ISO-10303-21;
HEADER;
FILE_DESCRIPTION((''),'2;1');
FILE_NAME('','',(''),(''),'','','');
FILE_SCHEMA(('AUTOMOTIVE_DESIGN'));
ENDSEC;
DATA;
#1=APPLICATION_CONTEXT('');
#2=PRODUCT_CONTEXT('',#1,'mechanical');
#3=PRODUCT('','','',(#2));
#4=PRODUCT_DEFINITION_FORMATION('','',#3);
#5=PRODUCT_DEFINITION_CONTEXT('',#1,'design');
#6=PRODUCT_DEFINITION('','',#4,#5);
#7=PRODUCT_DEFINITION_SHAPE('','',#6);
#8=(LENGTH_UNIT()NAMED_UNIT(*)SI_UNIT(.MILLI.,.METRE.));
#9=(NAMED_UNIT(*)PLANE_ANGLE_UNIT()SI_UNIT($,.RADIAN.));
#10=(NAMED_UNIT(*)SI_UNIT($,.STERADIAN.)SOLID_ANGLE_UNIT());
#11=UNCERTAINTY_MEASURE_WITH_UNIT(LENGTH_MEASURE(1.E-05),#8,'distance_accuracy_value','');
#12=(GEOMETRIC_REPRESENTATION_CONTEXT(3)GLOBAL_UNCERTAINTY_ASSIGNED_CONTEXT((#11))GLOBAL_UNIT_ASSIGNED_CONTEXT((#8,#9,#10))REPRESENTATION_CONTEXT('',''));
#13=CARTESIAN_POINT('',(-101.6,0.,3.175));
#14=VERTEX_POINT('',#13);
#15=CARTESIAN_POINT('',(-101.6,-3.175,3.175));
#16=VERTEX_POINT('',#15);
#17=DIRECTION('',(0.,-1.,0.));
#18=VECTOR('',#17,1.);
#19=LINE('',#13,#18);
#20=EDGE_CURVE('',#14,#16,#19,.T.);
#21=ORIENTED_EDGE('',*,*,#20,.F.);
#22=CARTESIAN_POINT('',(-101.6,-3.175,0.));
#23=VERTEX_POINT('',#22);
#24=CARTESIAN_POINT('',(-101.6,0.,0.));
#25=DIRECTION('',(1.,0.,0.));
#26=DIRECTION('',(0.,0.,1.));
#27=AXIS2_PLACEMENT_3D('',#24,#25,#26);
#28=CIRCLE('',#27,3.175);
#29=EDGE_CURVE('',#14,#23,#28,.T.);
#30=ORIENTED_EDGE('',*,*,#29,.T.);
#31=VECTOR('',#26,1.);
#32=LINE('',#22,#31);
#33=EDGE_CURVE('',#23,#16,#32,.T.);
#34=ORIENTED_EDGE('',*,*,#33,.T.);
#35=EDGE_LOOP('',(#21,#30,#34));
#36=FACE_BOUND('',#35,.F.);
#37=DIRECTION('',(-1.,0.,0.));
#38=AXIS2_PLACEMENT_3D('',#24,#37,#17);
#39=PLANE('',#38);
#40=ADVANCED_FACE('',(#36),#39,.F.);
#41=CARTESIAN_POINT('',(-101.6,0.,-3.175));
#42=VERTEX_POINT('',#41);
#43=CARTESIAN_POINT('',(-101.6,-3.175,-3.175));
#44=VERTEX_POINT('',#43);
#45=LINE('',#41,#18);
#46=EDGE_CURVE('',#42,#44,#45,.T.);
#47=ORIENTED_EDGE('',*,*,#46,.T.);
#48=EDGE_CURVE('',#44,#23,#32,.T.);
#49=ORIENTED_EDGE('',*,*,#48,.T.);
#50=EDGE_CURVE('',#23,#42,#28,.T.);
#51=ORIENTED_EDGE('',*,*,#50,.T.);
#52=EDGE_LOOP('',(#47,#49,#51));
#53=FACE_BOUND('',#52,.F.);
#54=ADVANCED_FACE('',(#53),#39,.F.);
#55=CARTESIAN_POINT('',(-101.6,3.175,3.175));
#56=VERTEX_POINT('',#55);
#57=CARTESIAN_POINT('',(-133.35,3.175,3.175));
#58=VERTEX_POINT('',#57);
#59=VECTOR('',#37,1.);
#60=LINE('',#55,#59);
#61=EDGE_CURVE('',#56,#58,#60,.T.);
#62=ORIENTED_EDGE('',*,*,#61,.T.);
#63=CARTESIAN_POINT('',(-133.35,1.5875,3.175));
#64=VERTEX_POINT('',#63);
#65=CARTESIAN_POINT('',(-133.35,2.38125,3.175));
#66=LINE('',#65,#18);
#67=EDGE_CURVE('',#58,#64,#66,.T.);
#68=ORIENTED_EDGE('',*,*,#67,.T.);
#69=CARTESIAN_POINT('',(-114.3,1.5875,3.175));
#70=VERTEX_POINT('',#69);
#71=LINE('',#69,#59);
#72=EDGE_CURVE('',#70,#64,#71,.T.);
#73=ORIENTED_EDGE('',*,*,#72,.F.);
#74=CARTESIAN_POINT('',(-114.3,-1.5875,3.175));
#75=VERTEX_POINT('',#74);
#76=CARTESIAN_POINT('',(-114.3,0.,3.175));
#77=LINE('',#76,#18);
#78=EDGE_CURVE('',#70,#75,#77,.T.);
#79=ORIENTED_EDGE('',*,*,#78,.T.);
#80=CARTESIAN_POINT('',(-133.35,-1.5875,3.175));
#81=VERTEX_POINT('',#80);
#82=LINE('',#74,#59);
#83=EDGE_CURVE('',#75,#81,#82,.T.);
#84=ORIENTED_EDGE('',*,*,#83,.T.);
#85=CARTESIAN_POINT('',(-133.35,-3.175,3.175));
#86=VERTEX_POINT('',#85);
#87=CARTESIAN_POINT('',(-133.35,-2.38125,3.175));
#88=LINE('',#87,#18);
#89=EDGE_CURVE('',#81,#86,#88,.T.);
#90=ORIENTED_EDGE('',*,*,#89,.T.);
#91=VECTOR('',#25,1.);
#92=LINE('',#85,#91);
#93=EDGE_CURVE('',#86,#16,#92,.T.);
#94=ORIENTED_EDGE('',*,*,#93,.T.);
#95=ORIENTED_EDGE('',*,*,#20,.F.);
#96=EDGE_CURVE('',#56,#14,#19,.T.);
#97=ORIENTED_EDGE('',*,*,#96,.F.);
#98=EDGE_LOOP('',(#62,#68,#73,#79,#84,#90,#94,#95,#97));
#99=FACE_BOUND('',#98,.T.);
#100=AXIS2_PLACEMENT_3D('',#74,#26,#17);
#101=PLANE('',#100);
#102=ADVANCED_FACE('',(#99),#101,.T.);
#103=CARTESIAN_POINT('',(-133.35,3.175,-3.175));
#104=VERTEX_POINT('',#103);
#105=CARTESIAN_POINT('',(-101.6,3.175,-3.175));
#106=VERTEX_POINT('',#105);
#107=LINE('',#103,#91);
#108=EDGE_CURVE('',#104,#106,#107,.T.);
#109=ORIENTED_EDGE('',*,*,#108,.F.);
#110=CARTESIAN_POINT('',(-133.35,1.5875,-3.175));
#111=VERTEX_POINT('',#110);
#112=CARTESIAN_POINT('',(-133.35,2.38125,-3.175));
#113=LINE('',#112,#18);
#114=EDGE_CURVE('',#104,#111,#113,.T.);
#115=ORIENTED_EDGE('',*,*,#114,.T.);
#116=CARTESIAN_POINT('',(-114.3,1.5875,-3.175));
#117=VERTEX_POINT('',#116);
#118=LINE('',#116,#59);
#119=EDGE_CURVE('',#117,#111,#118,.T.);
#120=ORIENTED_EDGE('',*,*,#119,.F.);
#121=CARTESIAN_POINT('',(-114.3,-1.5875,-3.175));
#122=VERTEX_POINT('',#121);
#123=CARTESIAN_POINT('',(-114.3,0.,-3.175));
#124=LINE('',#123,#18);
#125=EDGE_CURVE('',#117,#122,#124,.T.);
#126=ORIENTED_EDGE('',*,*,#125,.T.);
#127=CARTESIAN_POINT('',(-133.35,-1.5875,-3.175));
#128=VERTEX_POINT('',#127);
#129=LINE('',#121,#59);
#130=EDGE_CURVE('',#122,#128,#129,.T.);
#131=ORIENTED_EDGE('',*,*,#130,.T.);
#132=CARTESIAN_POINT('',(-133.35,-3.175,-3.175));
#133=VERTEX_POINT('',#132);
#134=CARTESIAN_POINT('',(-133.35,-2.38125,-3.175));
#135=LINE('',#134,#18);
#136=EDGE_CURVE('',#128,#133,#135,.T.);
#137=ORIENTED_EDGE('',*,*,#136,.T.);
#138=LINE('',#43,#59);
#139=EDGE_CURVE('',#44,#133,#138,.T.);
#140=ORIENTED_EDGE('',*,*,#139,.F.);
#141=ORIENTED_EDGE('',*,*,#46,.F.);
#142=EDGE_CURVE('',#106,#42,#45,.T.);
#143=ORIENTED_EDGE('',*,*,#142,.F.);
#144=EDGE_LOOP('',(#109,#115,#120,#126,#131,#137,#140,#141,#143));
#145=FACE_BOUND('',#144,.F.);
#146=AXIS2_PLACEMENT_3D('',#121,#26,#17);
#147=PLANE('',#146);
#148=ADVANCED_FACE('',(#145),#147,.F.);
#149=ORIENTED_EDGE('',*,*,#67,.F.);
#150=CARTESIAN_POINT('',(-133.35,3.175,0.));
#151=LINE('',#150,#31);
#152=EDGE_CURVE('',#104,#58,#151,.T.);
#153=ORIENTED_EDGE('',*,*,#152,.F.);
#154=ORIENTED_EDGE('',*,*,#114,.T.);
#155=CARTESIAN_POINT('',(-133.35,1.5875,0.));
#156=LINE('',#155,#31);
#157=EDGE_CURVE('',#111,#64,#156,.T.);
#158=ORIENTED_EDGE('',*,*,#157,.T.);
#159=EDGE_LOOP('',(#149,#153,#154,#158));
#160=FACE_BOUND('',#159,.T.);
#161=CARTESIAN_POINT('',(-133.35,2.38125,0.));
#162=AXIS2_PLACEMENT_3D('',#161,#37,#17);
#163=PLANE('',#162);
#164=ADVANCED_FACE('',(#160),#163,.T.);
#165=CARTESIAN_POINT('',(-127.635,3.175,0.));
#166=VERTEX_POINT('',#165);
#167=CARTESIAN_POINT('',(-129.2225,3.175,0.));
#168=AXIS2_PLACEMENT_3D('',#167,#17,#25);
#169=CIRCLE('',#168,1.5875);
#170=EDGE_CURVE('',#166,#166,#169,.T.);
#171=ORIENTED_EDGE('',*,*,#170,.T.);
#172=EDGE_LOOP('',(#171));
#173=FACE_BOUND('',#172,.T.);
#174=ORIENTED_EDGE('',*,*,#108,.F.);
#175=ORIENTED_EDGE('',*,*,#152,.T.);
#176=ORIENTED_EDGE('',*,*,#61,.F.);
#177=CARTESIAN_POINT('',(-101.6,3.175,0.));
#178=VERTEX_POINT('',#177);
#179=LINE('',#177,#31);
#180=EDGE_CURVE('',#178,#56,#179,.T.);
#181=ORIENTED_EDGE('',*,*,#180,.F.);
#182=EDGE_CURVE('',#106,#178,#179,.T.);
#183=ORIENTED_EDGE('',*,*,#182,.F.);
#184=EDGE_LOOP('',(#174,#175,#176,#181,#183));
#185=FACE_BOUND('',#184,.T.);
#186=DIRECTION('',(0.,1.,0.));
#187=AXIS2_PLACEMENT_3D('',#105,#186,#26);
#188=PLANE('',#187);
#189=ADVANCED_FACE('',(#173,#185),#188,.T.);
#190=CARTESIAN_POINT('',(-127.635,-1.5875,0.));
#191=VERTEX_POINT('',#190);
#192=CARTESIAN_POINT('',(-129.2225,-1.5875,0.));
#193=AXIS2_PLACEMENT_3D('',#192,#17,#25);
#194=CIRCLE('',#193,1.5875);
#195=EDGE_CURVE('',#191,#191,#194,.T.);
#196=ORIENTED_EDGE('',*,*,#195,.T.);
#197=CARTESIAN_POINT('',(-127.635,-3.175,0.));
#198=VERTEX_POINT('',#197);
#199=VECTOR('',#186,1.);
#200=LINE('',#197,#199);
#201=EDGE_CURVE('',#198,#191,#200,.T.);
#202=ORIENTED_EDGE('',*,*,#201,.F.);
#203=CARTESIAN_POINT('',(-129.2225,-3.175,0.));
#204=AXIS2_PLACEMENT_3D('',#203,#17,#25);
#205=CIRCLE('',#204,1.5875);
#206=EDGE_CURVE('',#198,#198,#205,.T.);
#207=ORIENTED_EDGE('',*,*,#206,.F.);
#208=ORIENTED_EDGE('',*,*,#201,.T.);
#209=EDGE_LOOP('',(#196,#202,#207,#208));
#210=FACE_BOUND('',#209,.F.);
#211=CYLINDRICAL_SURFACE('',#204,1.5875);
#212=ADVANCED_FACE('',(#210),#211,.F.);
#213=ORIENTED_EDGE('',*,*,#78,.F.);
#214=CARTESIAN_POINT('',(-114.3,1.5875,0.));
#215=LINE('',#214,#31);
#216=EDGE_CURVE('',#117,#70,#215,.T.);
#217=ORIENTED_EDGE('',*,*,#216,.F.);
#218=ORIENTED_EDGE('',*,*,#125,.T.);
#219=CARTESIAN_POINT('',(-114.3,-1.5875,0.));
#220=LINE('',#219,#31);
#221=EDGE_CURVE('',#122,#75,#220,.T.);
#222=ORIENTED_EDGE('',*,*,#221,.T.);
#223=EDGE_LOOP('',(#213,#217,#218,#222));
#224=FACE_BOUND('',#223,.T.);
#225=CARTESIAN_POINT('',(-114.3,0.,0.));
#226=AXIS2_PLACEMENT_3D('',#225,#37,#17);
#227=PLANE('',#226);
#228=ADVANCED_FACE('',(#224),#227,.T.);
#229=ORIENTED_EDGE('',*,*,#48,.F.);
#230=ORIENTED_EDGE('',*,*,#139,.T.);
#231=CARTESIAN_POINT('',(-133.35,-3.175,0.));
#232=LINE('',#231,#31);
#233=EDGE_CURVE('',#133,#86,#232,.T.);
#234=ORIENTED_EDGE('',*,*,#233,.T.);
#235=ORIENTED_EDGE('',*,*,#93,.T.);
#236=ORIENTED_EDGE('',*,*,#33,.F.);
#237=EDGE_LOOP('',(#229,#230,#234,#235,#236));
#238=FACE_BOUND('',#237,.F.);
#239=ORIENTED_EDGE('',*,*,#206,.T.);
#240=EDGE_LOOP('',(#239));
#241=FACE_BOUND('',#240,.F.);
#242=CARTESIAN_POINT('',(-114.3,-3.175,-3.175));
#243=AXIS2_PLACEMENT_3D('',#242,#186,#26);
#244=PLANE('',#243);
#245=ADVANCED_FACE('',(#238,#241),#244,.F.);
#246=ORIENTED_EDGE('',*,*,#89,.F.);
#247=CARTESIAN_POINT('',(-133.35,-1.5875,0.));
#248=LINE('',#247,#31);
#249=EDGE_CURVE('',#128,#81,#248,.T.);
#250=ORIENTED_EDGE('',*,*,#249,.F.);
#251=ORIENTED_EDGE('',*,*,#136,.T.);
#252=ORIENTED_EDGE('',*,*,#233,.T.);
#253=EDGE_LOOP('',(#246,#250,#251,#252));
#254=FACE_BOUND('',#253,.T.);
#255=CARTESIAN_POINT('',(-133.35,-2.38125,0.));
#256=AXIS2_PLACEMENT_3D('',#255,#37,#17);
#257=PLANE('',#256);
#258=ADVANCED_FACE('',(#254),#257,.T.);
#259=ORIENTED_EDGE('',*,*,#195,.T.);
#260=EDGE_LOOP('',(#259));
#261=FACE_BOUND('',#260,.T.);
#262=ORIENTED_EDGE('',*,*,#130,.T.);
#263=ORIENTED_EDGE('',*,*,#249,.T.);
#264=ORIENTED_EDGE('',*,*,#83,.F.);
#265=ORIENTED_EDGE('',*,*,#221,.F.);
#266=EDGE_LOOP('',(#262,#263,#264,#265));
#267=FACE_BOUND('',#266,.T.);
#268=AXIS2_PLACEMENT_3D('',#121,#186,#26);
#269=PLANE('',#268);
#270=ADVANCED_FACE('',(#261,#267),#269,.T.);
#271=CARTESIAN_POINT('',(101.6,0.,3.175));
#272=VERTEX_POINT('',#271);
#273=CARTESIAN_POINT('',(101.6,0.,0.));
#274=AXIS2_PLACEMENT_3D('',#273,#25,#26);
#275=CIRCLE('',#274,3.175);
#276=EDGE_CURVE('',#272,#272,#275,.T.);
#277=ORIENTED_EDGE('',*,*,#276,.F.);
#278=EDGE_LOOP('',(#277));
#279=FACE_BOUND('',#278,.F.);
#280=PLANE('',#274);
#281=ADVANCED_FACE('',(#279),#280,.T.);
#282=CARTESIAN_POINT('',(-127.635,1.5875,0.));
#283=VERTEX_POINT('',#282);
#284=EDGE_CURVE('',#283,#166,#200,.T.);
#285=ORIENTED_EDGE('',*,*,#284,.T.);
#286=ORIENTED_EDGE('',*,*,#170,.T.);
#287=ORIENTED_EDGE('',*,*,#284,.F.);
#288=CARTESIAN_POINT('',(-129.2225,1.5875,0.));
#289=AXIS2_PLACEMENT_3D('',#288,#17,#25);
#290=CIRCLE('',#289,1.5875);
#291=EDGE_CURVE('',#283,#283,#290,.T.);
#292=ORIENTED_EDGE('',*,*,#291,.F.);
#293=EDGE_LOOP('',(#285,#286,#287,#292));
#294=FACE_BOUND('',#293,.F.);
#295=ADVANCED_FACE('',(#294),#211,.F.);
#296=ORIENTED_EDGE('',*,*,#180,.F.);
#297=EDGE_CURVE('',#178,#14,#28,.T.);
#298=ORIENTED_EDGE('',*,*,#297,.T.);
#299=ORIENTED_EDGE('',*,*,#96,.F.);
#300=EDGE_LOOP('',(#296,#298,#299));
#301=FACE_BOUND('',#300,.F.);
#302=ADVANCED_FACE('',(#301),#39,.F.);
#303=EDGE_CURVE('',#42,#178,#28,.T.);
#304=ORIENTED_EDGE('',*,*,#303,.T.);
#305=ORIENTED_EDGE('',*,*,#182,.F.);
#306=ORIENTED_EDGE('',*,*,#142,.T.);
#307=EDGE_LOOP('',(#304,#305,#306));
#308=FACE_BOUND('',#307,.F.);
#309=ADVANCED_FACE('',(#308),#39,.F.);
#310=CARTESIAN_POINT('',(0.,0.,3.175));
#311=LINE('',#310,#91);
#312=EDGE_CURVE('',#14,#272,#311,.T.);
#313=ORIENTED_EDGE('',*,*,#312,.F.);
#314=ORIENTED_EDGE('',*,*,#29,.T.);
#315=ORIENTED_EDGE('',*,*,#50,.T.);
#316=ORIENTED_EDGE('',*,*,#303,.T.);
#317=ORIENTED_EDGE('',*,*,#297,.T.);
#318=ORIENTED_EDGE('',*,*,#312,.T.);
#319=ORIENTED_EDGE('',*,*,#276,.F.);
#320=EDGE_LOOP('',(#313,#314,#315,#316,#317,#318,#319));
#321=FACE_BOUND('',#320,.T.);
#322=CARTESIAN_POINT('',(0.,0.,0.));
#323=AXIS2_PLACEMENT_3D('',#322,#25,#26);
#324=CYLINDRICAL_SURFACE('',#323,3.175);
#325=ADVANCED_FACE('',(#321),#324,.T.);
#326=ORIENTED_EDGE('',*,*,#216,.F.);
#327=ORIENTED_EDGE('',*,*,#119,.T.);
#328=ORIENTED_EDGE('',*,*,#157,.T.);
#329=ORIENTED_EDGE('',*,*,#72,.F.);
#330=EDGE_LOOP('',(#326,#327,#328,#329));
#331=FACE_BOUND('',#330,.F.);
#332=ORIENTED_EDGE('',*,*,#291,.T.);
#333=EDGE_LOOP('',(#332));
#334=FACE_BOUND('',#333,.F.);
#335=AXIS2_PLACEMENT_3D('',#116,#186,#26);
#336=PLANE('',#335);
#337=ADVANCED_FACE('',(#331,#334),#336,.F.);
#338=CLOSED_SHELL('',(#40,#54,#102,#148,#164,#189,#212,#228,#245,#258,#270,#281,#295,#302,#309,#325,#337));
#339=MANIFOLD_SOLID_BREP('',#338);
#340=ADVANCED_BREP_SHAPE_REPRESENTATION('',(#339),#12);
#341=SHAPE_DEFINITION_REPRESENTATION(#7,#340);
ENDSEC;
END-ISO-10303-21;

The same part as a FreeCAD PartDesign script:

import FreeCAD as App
import Part
import Sketcher
Q = App.Units.Quantity

doc = App.newDocument("Part")
body = doc.addObject("PartDesign::Body", "Body")

# Sketch on XZ plane
sketch1 = body.newObject("Sketcher::SketchObject", "Sketch")
sketch1.AttachmentSupport = (doc.getObject("XZ_Plane"), [""])
sketch1.MapMode = "FlatFace"
sketch1.addGeometry([
    Part.LineSegment(App.Vector(-101.6, 3.2, 0), App.Vector(-101.6, 0, 0)),
    Part.LineSegment(App.Vector(-101.6, 0, 0), App.Vector(101.6, 0, 0)),
    Part.LineSegment(App.Vector(101.6, 0, 0), App.Vector(101.6, 3.2, 0)),
    Part.LineSegment(App.Vector(101.6, 3.2, 0), App.Vector(-101.6, 3.2, 0)),
], False)
sketch1.addConstraint([
    Sketcher.Constraint("Coincident", 0, 2, 1, 1),
    Sketcher.Constraint("Coincident", 1, 2, 2, 1),
    Sketcher.Constraint("Coincident", 2, 2, 3, 1),
    Sketcher.Constraint("Coincident", 3, 2, 0, 1),
    Sketcher.Constraint("Vertical", 0),
    Sketcher.Constraint("Horizontal", 1),
    Sketcher.Constraint("Vertical", 2),
    Sketcher.Constraint("Horizontal", 3),
    Sketcher.Constraint("Symmetric", 0, 2, 1, 2, -1, 1),
    Sketcher.Constraint("DistanceX", 1, 1, 1, 2, Q("8 in")),
    Sketcher.Constraint("DistanceY", 0, 2, 0, 1, Q("0.125 in")),
])
revolution = body.newObject("PartDesign::Revolution", "Revolution")
revolution.Profile = sketch1
revolution.ReferenceAxis = (sketch1, ["H_Axis"])
revolution.Angle = 360

# Sketch on YZ plane
sketch2 = body.newObject("Sketcher::SketchObject", "Sketch001")
sketch2.AttachmentSupport = (doc.getObject("YZ_Plane"), [""])
sketch2.MapMode = "FlatFace"
sketch2.AttachmentOffset = App.Placement(App.Vector(0, 0, -4 * 25.4), App.Rotation())
sketch2.addGeometry([
    Part.LineSegment(App.Vector(3, 3, 0), App.Vector(3, -3, 0)),
    Part.LineSegment(App.Vector(3, -3, 0), App.Vector(-3, -3, 0)),
    Part.LineSegment(App.Vector(-3, -3, 0), App.Vector(-3, 3, 0)),
    Part.LineSegment(App.Vector(-3, 3, 0), App.Vector(3, 3, 0)),
], False)
sketch2.addConstraint([
    Sketcher.Constraint("Coincident", 0, 2, 1, 1),
    Sketcher.Constraint("Coincident", 1, 2, 2, 1),
    Sketcher.Constraint("Coincident", 2, 2, 3, 1),
    Sketcher.Constraint("Coincident", 3, 2, 0, 1),
    Sketcher.Constraint("Vertical", 0),
    Sketcher.Constraint("Horizontal", 1),
    Sketcher.Constraint("Vertical", 2),
    Sketcher.Constraint("Horizontal", 3),
    Sketcher.Constraint("Symmetric", 0, 2, 2, 2, -1, 1),
    Sketcher.Constraint("Equal", 3, 0),
    Sketcher.Constraint("DistanceX", 1, 2, 1, 1, Q("0.25 in")),
])
pad1 = body.newObject("PartDesign::Pad", "Pad")
pad1.Profile = sketch2
pad1.Length = Q("0.5 in")
pad1.Reversed = True

# Sketch on YZ plane
sketch3 = body.newObject("Sketcher::SketchObject", "Sketch002")
sketch3.AttachmentSupport = (doc.getObject("YZ_Plane"), [""])
sketch3.MapMode = "FlatFace"
sketch3.AttachmentOffset = App.Placement(App.Vector(0, 0, -4.5 * 25.4), App.Rotation())
sketch3.addGeometry([
    Part.LineSegment(App.Vector(-1.6, 3.2, 0), App.Vector(-1.6, -3.2, 0)),  # 0
    Part.LineSegment(App.Vector(-1.6, -3.2, 0), App.Vector(-3.2, -3.2, 0)),  # 1
    Part.LineSegment(App.Vector(-3.2, -3.2, 0), App.Vector(-3.2, 3.2, 0)),  # 2
    Part.LineSegment(App.Vector(-3.2, 3.2, 0), App.Vector(-1.6, 3.2, 0)),  # 3
    Part.LineSegment(App.Vector(3.2, 3.2, 0), App.Vector(3.2, -3.2, 0)),  # 4
    Part.LineSegment(App.Vector(3.2, -3.2, 0), App.Vector(1.6, -3.2, 0)),  # 5
    Part.LineSegment(App.Vector(1.6, -3.2, 0), App.Vector(1.6, 3.2, 0)),  # 6
    Part.LineSegment(App.Vector(1.6, 3.2, 0), App.Vector(3.2, 3.2, 0)),  # 7
], False)
sketch3.addConstraint([
    Sketcher.Constraint("Coincident", 0, 2, 1, 1),
    Sketcher.Constraint("Coincident", 1, 2, 2, 1),
    Sketcher.Constraint("Coincident", 2, 2, 3, 1),
    Sketcher.Constraint("Coincident", 3, 2, 0, 1),
    Sketcher.Constraint("Coincident", 4, 2, 5, 1),
    Sketcher.Constraint("Coincident", 5, 2, 6, 1),
    Sketcher.Constraint("Coincident", 6, 2, 7, 1),
    Sketcher.Constraint("Coincident", 7, 2, 4, 1),
    Sketcher.Constraint("Vertical", 0),
    Sketcher.Constraint("Horizontal", 1),
    Sketcher.Constraint("Vertical", 2),
    Sketcher.Constraint("Horizontal", 3),
    Sketcher.Constraint("Vertical", 4),
    Sketcher.Constraint("Horizontal", 5),
    Sketcher.Constraint("Vertical", 6),
    Sketcher.Constraint("Horizontal", 7),
    Sketcher.Constraint("Symmetric", 2, 2, 4, 2, -1, 1),
    Sketcher.Constraint("Symmetric", 0, 2, 6, 2, -1, 1),
    Sketcher.Constraint("Horizontal", 1, 2, 4, 2),
    Sketcher.Constraint("DistanceY", 0, 2, 0, 1, Q("0.25 in")),
    Sketcher.Constraint("DistanceX", 1, 2, 1, 1, Q("0.0625 in")),
    Sketcher.Constraint("DistanceX", 1, 2, 4, 2, Q("0.25 in")),
])
pad2 = body.newObject("PartDesign::Pad", "Pad001")
pad2.Profile = sketch3
pad2.Length = Q("0.75 in")
pad2.Reversed = True

# Sketch on XZ plane
sketch4 = body.newObject("Sketcher::SketchObject", "Sketch003")
sketch4.AttachmentSupport = (doc.getObject("XZ_Plane"), [""])
sketch4.MapMode = "FlatFace"
sketch4.AttachmentOffset = App.Placement(App.Vector(0, 0, 0.125 * 25.4), App.Rotation())
sketch4.addGeometry(Part.Circle(App.Vector(-129.2, 0, 0), App.Vector(0, 0, 1), 1.6), False)
sketch4.addConstraint([
    Sketcher.Constraint("PointOnObject", 0, 3, -1),
    Sketcher.Constraint("Diameter", 0, Q("0.125 in")),
    Sketcher.Constraint("DistanceX", 0, 3, -1, 1, Q("5.0875 in")),
])
pocket1 = body.newObject("PartDesign::Pocket", "Pocket")
pocket1.Profile = sketch4
pocket1.Length = Q("1 in")

doc.recompute()
